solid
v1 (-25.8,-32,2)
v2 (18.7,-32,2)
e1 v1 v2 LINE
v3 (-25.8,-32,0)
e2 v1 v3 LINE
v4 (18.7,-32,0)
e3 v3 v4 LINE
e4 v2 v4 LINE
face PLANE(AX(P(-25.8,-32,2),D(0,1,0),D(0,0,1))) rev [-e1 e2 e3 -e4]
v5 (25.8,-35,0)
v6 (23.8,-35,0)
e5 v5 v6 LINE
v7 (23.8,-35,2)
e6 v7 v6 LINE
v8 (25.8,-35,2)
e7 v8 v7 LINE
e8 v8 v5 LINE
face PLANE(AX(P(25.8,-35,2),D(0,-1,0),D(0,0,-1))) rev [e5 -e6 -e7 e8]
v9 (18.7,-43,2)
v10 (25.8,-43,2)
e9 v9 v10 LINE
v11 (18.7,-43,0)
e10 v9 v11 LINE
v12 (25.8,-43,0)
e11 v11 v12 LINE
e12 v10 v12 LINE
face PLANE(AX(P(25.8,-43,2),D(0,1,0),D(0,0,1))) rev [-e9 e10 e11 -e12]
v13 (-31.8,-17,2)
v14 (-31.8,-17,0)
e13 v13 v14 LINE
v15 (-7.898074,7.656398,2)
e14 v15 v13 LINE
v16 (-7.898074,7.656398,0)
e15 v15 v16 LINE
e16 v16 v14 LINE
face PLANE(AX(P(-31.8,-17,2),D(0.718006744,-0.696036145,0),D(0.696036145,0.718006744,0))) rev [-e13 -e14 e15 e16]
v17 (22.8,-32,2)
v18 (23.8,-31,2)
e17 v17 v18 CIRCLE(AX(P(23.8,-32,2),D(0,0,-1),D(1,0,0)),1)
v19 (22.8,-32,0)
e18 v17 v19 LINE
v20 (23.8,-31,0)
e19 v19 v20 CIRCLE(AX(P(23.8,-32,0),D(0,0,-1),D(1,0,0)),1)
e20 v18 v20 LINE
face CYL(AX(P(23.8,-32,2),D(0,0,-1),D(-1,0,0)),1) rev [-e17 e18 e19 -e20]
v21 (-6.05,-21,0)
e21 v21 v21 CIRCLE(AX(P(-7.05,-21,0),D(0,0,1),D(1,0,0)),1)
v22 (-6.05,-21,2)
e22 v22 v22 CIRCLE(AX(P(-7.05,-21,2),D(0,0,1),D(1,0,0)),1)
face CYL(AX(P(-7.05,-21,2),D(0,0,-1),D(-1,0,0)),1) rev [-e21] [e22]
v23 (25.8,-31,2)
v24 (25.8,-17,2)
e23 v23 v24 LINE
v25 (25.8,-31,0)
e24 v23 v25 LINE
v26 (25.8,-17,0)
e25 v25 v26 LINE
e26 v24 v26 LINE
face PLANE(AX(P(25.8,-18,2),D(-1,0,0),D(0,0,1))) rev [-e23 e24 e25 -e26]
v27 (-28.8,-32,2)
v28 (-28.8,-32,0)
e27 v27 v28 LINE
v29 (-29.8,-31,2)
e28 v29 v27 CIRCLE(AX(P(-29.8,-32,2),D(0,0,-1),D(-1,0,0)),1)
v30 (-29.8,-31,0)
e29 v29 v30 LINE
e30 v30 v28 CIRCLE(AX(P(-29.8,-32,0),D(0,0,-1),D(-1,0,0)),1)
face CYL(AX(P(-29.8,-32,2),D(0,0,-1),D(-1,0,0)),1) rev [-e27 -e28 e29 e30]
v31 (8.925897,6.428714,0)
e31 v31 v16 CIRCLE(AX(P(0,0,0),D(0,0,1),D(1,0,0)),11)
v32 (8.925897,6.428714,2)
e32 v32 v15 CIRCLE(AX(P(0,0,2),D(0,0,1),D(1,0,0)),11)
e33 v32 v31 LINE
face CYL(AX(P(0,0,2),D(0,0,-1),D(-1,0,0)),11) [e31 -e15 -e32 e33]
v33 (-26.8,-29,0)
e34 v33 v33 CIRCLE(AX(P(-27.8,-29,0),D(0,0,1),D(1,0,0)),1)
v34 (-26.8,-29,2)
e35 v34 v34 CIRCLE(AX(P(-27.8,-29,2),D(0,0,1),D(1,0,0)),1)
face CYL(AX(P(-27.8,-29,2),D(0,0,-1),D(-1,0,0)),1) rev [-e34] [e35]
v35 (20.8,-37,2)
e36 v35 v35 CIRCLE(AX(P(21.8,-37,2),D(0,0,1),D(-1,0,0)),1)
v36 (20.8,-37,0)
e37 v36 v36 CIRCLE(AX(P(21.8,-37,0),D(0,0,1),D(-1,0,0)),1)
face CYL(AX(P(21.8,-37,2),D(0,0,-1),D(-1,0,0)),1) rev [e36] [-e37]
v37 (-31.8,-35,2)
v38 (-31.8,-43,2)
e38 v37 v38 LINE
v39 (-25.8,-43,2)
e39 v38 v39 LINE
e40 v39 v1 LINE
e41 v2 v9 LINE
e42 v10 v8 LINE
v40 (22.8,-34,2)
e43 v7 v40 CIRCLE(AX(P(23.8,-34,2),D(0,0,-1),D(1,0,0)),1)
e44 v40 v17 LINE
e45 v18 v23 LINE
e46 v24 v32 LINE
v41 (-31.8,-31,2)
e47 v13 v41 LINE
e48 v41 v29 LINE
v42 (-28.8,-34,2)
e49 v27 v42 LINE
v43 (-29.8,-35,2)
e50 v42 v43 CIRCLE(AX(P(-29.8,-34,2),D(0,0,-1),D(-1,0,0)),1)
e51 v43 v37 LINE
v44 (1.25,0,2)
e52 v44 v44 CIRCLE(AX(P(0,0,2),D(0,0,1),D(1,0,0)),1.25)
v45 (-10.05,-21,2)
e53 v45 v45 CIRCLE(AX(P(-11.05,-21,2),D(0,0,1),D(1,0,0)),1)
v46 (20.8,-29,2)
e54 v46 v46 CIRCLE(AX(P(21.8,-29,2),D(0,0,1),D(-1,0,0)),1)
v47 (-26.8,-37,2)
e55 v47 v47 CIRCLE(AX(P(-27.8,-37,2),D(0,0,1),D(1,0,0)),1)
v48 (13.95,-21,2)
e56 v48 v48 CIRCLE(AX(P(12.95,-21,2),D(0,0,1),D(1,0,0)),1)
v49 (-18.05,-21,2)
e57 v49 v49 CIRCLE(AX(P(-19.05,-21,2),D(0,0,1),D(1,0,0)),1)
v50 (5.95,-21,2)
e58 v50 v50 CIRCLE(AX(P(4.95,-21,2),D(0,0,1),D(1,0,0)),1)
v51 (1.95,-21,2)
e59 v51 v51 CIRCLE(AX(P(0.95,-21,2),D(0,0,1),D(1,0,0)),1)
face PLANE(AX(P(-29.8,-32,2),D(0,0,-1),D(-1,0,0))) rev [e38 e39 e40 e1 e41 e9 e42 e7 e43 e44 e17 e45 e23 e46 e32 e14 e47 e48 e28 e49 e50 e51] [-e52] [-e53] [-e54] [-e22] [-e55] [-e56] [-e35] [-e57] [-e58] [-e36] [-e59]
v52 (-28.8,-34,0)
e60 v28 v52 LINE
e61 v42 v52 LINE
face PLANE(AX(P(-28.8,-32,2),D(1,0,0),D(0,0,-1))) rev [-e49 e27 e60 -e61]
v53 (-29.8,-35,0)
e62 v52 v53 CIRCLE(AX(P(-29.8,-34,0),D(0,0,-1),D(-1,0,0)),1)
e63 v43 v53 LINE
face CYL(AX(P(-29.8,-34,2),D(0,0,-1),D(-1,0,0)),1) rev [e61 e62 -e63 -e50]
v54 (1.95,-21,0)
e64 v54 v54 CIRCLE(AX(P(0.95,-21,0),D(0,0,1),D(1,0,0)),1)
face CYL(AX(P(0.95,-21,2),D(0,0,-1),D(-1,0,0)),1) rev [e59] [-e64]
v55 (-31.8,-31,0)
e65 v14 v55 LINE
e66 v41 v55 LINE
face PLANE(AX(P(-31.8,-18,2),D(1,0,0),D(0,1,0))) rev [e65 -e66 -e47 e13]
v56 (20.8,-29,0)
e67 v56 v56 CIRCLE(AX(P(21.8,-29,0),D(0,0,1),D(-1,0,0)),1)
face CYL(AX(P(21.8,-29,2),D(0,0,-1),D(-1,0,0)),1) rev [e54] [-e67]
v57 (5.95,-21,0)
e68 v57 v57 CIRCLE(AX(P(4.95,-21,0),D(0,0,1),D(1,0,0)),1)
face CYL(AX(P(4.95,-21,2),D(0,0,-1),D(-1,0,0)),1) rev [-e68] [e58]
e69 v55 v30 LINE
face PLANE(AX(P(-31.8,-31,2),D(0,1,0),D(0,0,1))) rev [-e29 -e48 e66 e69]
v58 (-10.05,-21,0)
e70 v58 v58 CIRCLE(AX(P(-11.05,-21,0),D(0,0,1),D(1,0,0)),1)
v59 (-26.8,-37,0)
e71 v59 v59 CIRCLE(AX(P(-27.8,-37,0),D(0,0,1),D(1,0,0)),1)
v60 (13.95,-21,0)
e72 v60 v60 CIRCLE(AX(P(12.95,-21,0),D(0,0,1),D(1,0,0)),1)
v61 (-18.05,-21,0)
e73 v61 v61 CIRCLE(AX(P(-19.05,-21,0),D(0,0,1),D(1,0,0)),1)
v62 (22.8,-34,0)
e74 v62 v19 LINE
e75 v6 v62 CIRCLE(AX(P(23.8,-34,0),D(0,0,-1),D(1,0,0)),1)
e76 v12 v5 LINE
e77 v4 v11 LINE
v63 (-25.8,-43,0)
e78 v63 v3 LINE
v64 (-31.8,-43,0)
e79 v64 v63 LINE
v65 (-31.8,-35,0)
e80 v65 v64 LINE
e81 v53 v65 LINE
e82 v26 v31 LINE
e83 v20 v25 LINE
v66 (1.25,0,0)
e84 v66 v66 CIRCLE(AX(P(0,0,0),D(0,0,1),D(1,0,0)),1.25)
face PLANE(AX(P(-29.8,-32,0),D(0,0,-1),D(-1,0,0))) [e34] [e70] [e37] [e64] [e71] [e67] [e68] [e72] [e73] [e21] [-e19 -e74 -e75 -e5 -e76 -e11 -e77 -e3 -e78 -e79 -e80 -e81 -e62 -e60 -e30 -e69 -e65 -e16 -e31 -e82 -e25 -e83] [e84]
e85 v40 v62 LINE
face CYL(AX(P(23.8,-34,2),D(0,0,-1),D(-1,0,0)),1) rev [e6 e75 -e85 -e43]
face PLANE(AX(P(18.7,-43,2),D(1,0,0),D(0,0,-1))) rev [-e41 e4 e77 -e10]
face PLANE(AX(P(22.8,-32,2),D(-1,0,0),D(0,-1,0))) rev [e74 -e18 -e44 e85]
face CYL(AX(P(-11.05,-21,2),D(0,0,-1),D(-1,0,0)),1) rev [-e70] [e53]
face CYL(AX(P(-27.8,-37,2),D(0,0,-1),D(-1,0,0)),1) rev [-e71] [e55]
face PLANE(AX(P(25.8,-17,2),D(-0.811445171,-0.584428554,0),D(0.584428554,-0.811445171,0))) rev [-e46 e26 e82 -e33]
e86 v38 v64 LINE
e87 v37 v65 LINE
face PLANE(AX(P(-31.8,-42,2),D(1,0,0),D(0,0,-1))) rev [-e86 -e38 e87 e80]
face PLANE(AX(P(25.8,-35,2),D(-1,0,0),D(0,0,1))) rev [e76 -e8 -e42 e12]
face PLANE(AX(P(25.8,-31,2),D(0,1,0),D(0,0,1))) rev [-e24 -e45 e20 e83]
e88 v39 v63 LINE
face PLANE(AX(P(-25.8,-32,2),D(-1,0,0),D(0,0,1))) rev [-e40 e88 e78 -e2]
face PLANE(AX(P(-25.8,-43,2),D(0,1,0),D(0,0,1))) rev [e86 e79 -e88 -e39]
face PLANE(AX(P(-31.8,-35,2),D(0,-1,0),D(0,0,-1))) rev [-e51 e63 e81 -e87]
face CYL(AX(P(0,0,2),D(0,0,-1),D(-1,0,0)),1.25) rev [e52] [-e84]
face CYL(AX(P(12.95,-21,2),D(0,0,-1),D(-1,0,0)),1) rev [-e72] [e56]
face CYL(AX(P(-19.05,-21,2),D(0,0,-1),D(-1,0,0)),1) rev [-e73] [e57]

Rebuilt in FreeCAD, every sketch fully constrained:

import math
import FreeCAD as App
import Part
import Sketcher

V = App.Vector

doc = App.newDocument("Part")
body = doc.addObject("PartDesign::Body", "Body")

# Sketch on XY plane
sketch1 = body.newObject("Sketcher::SketchObject", "Sketch")
sketch1.AttachmentSupport = (doc.getObject("XY_Plane"), [""])
sketch1.MapMode = "FlatFace"
sketch1.addGeometry([
    Part.LineSegment(V(-28.8, -32, 0), V(-28.8, -34, 0)),  # 0
    Part.ArcOfCircle(Part.Circle(V(-29.8, -34, 0), V(0, 0, 1), 1), math.radians(-90), math.radians(0)),  # 1
    Part.LineSegment(V(-29.8, -35, 0), V(-31.8, -35, 0)),  # 2
    Part.LineSegment(V(-31.8, -35, 0), V(-31.8, -43, 0)),  # 3
    Part.LineSegment(V(-31.8, -43, 0), V(-25.8, -43, 0)),  # 4
    Part.LineSegment(V(-25.8, -43, 0), V(-25.8, -32, 0)),  # 5
    Part.LineSegment(V(-25.8, -32, 0), V(18.7, -32, 0)),  # 6
    Part.LineSegment(V(18.7, -32, 0), V(18.7, -43, 0)),  # 7
    Part.LineSegment(V(18.7, -43, 0), V(25.8, -43, 0)),  # 8
    Part.LineSegment(V(25.8, -43, 0), V(25.8, -35, 0)),  # 9
    Part.LineSegment(V(25.8, -35, 0), V(23.8, -35, 0)),  # 10
    Part.ArcOfCircle(Part.Circle(V(23.8, -34, 0), V(0, 0, 1), 1), math.radians(-180), math.radians(-90)),  # 11
    Part.LineSegment(V(22.8, -34, 0), V(22.8, -32, 0)),  # 12
    Part.ArcOfCircle(Part.Circle(V(23.8, -32, 0), V(0, 0, 1), 1), math.radians(90), math.radians(180)),  # 13
    Part.LineSegment(V(23.8, -31, 0), V(25.8, -31, 0)),  # 14
    Part.LineSegment(V(25.8, -31, 0), V(25.8, -17, 0)),  # 15
    Part.LineSegment(V(25.8, -17, 0), V(8.9, 6.4, 0)),  # 16
    Part.ArcOfCircle(Part.Circle(V(0, 0, 0), V(0, 0, 1), 11), math.radians(36), math.radians(136)),  # 17
    Part.LineSegment(V(-7.9, 7.7, 0), V(-31.8, -17, 0)),  # 18
    Part.LineSegment(V(-31.8, -17, 0), V(-31.8, -31, 0)),  # 19
    Part.LineSegment(V(-31.8, -31, 0), V(-29.8, -31, 0)),  # 20
    Part.ArcOfCircle(Part.Circle(V(-29.8, -32, 0), V(0, 0, 1), 1), math.radians(0), math.radians(90)),  # 21
    Part.Circle(V(-27.8, -37, 0), V(0, 0, 1), 1),  # 22
    Part.Circle(V(-27.8, -29, 0), V(0, 0, 1), 1),  # 23
    Part.Circle(V(-19.1, -21, 0), V(0, 0, 1), 1),  # 24
    Part.Circle(V(-11.1, -21, 0), V(0, 0, 1), 1),  # 25
    Part.Circle(V(-7, -21, 0), V(0, 0, 1), 1),  # 26
    Part.Circle(V(21.8, -37, 0), V(0, 0, 1), 1),  # 27
    Part.Circle(V(21.8, -29, 0), V(0, 0, 1), 1),  # 28
    Part.Circle(V(0.9, -21, 0), V(0, 0, 1), 1),  # 29
    Part.Circle(V(5, -21, 0), V(0, 0, 1), 1),  # 30
    Part.Circle(V(12.9, -21, 0), V(0, 0, 1), 1),  # 31
    Part.Circle(V(0, 0, 0), V(0, 0, 1), 1.2),  # 32
], False)
sketch1.addConstraint([
    Sketcher.Constraint("Tangent", 0, 2, 1, 2),
    Sketcher.Constraint("Tangent", 1, 1, 2, 1),
    Sketcher.Constraint("Coincident", 2, 2, 3, 1),
    Sketcher.Constraint("Coincident", 3, 2, 4, 1),
    Sketcher.Constraint("Coincident", 4, 2, 5, 1),
    Sketcher.Constraint("Coincident", 5, 2, 6, 1),
    Sketcher.Constraint("Coincident", 6, 2, 7, 1),
    Sketcher.Constraint("Coincident", 7, 2, 8, 1),
    Sketcher.Constraint("Coincident", 8, 2, 9, 1),
    Sketcher.Constraint("Coincident", 9, 2, 10, 1),
    Sketcher.Constraint("Tangent", 10, 2, 11, 2),
    Sketcher.Constraint("Tangent", 11, 1, 12, 1),
    Sketcher.Constraint("Tangent", 12, 2, 13, 2),
    Sketcher.Constraint("Tangent", 13, 1, 14, 1),
    Sketcher.Constraint("Coincident", 14, 2, 15, 1),
    Sketcher.Constraint("Coincident", 15, 2, 16, 1),
    Sketcher.Constraint("Tangent", 16, 2, 17, 1),
    Sketcher.Constraint("Tangent", 17, 2, 18, 1),
    Sketcher.Constraint("Coincident", 18, 2, 19, 1),
    Sketcher.Constraint("Coincident", 19, 2, 20, 1),
    Sketcher.Constraint("Tangent", 20, 2, 21, 2),
    Sketcher.Constraint("Tangent", 21, 1, 0, 1),
    Sketcher.Constraint("Vertical", 0),
    Sketcher.Constraint("Horizontal", 2),
    Sketcher.Constraint("Vertical", 3),
    Sketcher.Constraint("Horizontal", 4),
    Sketcher.Constraint("Vertical", 5),
    Sketcher.Constraint("Horizontal", 6),
    Sketcher.Constraint("Vertical", 7),
    Sketcher.Constraint("Horizontal", 8),
    Sketcher.Constraint("Vertical", 9),
    Sketcher.Constraint("Horizontal", 10),
    Sketcher.Constraint("Vertical", 12),
    Sketcher.Constraint("Horizontal", 14),
    Sketcher.Constraint("Vertical", 15),
    Sketcher.Constraint("Vertical", 19),
    Sketcher.Constraint("Horizontal", 20),
    Sketcher.Constraint("Coincident", 17, 3, -1, 1),
    Sketcher.Constraint("Coincident", 32, 3, -1, 1),
    Sketcher.Constraint("Equal", 1, 11),
    Sketcher.Constraint("Equal", 11, 13),
    Sketcher.Constraint("Equal", 13, 21),
    Sketcher.Constraint("Equal", 21, 22),
    Sketcher.Constraint("Equal", 22, 23),
    Sketcher.Constraint("Equal", 23, 24),
    Sketcher.Constraint("Equal", 24, 25),
    Sketcher.Constraint("Equal", 25, 26),
    Sketcher.Constraint("Equal", 26, 27),
    Sketcher.Constraint("Equal", 27, 28),
    Sketcher.Constraint("Equal", 28, 29),
    Sketcher.Constraint("Equal", 29, 30),
    Sketcher.Constraint("Equal", 30, 31),
    Sketcher.Constraint("Symmetric", 4, 2, 8, 2, -2),
    Sketcher.Constraint("Horizontal", 1, 3, 11, 3),
    Sketcher.Constraint("Horizontal", 13, 3, 21, 3),
    Sketcher.Constraint("Horizontal", 24, 3, 25, 3),
    Sketcher.Constraint("Horizontal", 25, 3, 26, 3),
    Sketcher.Constraint("Horizontal", 22, 3, 27, 3),
    Sketcher.Constraint("Horizontal", 23, 3, 28, 3),
    Sketcher.Constraint("Horizontal", 26, 3, 29, 3),
    Sketcher.Constraint("Horizontal", 29, 3, 30, 3),
    Sketcher.Constraint("Horizontal", 30, 3, 31, 3),
    Sketcher.Constraint("Horizontal", 21, 3, 5, 2),
    Sketcher.Constraint("Horizontal", 15, 2, 18, 2),
    Sketcher.Constraint("Vertical", 22, 3, 23, 3),
    Sketcher.Constraint("Vertical", 27, 3, 28, 3),
    Sketcher.Constraint("Vertical", 9, 2, 14, 2),
    Sketcher.Constraint("Vertical", 3, 2, 18, 2),
    Sketcher.Constraint("Equal", 2, 10),
    Sketcher.Constraint("Equal", 20, 0),
    Sketcher.Constraint("Diameter", 22, 2.0),
    Sketcher.Constraint("Radius", 17, 11.0),
    Sketcher.Constraint("Diameter", 32, 2.5),
    Sketcher.Constraint("DistanceX", 2, 2, 2, 1, 2.0),
    Sketcher.Constraint("DistanceX", 4, 1, 4, 2, 6.0),
    Sketcher.Constraint("DistanceY", 3, 2, 3, 1, 8.0),
    Sketcher.Constraint("DistanceY", 15, 1, 15, 2, 14.0),
    Sketcher.Constraint("DistanceX", 6, 1, 6, 2, 44.5),
    Sketcher.Constraint("DistanceX", 8, 1, 8, 2, 7.1),
    Sketcher.Constraint("DistanceY", 1, 3, -1, 1, 34.0),
    Sketcher.Constraint("DistanceY", 22, 3, -1, 1, 37.0),
    Sketcher.Constraint("DistanceY", 23, 3, -1, 1, 29.0),
    Sketcher.Constraint("DistanceY", 24, 3, -1, 1, 21.0),
    Sketcher.Constraint("DistanceX", 1, 3, 22, 3, 2.0),
    Sketcher.Constraint("DistanceX", 24, 3, 25, 3, 8.0),
    Sketcher.Constraint("DistanceX", 25, 3, 26, 3, 4.0),
    Sketcher.Constraint("DistanceX", 27, 3, 11, 3, 2.0),
    Sketcher.Constraint("DistanceX", 26, 3, 29, 3, 8.0),
    Sketcher.Constraint("DistanceX", 29, 3, 30, 3, 4.0),
    Sketcher.Constraint("DistanceX", 30, 3, 31, 3, 8.0),
    Sketcher.Constraint("DistanceX", 24, 3, -1, 1, 19.05),
])
pad1 = body.newObject("PartDesign::Pad", "Pad")
pad1.Profile = sketch1
pad1.Length = 2

doc.recompute()
